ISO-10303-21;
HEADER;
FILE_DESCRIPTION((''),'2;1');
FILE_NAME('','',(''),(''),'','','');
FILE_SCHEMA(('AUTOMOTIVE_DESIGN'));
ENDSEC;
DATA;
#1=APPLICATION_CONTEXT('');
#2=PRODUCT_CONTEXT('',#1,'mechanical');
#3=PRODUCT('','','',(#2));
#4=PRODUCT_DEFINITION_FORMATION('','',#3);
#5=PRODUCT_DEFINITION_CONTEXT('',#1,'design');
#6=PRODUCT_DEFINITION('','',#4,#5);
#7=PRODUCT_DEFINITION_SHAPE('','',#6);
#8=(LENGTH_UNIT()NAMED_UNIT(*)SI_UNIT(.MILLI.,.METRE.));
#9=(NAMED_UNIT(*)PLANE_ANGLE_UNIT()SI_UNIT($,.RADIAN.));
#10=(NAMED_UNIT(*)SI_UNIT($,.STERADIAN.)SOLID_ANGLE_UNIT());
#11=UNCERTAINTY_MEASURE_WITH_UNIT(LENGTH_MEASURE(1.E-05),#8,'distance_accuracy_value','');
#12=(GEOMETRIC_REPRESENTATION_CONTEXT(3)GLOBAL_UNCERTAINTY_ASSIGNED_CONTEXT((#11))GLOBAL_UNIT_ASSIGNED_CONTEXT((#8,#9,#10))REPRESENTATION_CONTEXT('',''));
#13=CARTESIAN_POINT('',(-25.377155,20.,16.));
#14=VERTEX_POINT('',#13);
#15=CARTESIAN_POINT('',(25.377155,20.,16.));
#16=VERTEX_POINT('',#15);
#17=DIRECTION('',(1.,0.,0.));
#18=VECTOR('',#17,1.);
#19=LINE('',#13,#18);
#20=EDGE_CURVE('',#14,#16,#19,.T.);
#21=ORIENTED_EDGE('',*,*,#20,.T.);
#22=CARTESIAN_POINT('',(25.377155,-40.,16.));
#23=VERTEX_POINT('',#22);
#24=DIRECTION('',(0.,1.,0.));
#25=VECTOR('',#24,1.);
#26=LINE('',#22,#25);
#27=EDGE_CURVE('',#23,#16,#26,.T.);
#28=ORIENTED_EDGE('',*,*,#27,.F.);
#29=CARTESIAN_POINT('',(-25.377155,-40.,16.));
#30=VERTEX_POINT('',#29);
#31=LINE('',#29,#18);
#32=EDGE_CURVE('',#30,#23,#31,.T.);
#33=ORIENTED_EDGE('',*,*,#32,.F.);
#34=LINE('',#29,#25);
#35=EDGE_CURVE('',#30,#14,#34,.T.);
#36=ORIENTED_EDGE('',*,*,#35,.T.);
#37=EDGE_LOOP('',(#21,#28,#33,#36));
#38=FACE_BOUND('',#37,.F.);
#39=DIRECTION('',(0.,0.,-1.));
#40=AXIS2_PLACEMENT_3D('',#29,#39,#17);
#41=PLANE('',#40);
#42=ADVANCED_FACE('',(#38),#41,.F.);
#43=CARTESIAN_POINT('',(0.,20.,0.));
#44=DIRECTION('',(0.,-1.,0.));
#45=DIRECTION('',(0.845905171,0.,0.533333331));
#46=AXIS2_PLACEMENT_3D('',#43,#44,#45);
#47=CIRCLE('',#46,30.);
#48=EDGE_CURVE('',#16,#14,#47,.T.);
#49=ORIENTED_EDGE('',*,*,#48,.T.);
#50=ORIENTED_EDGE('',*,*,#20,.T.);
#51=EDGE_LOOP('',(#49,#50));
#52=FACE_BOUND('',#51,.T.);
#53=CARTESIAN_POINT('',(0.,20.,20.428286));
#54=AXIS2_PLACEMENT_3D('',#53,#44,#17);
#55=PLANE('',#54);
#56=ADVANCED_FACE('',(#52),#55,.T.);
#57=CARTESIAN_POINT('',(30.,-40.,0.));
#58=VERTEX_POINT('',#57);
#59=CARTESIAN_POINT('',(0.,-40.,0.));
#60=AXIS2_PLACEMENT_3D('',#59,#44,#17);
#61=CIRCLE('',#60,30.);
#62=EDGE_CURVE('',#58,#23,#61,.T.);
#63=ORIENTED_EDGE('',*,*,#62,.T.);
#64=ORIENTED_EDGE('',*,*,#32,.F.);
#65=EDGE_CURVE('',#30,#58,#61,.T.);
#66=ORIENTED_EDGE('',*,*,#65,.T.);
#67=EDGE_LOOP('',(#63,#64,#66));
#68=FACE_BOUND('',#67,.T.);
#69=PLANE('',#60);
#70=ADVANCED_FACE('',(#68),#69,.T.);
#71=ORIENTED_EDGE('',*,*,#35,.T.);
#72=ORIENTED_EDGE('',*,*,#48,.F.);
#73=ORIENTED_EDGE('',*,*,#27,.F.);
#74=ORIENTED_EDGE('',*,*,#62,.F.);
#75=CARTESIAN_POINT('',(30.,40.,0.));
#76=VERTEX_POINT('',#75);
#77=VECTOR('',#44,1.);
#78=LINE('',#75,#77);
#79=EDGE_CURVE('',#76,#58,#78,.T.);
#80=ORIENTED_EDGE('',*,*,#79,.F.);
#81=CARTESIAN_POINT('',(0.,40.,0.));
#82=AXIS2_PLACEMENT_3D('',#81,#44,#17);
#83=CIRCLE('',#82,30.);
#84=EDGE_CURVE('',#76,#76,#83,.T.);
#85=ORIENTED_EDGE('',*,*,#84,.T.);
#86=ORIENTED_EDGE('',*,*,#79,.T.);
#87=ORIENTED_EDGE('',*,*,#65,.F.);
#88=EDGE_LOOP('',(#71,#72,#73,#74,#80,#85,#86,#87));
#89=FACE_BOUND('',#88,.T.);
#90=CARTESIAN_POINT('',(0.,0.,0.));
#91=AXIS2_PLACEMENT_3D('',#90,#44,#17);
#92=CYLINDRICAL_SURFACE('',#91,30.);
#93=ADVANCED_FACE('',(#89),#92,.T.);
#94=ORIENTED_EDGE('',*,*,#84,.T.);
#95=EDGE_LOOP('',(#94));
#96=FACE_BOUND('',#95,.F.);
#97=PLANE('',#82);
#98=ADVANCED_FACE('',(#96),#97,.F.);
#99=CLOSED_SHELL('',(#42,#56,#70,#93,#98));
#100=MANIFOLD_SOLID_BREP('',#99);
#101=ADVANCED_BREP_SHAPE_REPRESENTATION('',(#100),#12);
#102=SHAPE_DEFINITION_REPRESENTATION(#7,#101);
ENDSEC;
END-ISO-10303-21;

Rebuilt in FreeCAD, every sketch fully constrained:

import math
import FreeCAD as App
import Part
import Sketcher
Q = App.Units.Quantity

doc = App.newDocument("Part")
body = doc.addObject("PartDesign::Body", "Body")

# Sketch on XZ plane
sketch1 = doc.addObject("Sketcher::SketchObject", "Sketch")
body.addObject(sketch1)
sketch1.AttachmentSupport = (doc.XZ_Plane, [""])
sketch1.MapMode = "FlatFace"
sketch1.addGeometry(Part.Circle(App.Vector(0, 0, 0), App.Vector(0, 0, 1), 30), False)
sketch1.addConstraint([
    Sketcher.Constraint("Coincident", 0, 3, -1, 1),
    Sketcher.Constraint("Diameter", 0, Q("60 mm")),
])
pad1 = doc.addObject("PartDesign::Pad", "Pad")
body.addObject(pad1)
pad1.Profile = sketch1
pad1.Length = 80
pad1.Midplane = True

# Sketch on XZ plane
sketch2 = doc.addObject("Sketcher::SketchObject", "Sketch001")
body.addObject(sketch2)
sketch2.AttachmentSupport = (doc.XZ_Plane, [""])
sketch2.MapMode = "FlatFace"
sketch2.AttachmentOffset = App.Placement(App.Vector(0, 0, 40), App.Rotation())
sketch2.addGeometry([
    Part.LineSegment(App.Vector(-25, 16, 0), App.Vector(25, 16, 0)),
    Part.ArcOfCircle(Part.Circle(App.Vector(0, 0, 0), App.Vector(0, 0, 1), 30), math.radians(32), math.radians(148)),
], False)
sketch2.addConstraint([
    Sketcher.Constraint("Coincident", 0, 1, 1, 2),
    Sketcher.Constraint("Coincident", 1, 1, 0, 2),
    Sketcher.Constraint("Horizontal", 0),
    Sketcher.Constraint("Coincident", 1, 3, -1, 1),
    Sketcher.Constraint("Radius", 1, Q("30 mm")),
    Sketcher.Constraint("DistanceY", -1, 1, 0, 1, Q("16 mm")),
])
pocket1 = doc.addObject("PartDesign::Pocket", "Pocket")
body.addObject(pocket1)
pocket1.Profile = sketch2
pocket1.Length = 60

doc.recompute()
